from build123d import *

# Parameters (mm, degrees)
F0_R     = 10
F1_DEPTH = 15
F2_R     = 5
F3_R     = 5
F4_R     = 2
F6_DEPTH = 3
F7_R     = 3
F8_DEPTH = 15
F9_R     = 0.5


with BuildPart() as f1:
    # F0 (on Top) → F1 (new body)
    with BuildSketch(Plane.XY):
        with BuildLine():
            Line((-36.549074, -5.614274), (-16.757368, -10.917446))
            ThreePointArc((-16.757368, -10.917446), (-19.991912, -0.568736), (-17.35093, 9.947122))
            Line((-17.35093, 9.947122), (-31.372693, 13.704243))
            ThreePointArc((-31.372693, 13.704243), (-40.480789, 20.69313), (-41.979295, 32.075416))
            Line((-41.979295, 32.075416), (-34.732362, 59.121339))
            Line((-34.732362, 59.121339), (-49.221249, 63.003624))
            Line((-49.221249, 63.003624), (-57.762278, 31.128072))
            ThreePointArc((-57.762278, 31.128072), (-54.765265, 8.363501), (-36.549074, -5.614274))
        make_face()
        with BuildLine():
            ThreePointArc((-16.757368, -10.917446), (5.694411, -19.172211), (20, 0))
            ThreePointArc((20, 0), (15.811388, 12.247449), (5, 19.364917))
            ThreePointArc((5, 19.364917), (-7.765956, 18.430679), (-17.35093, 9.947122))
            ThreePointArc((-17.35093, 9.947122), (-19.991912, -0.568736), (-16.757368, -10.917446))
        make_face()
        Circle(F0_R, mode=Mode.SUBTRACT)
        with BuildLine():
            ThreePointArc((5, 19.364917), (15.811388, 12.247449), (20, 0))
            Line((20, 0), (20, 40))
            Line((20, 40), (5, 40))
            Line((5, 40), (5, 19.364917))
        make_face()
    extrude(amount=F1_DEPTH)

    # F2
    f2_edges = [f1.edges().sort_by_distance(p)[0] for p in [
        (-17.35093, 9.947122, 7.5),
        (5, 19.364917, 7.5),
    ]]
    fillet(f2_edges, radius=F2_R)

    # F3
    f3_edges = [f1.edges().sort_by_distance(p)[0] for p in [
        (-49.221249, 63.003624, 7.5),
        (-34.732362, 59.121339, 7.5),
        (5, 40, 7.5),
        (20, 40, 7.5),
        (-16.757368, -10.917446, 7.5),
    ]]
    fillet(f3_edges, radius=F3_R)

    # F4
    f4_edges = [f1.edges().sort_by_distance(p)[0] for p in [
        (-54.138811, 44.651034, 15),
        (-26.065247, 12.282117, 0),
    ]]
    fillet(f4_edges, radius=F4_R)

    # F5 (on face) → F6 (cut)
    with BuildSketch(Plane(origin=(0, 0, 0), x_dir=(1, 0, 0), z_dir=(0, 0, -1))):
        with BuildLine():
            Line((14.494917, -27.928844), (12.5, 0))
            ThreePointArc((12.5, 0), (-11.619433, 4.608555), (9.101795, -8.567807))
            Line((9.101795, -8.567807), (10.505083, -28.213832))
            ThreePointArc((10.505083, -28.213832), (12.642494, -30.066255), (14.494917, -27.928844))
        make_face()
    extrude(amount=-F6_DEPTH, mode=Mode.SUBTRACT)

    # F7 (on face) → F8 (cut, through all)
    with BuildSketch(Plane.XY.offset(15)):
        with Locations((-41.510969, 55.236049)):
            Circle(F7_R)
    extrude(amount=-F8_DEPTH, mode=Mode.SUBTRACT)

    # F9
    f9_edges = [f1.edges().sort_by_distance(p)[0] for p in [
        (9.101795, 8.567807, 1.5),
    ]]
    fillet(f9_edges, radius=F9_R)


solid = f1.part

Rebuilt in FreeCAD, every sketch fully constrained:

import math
import FreeCAD as App
import Part
import Sketcher
from FreeCAD import Vector
Q = App.Units.Quantity


def edges_at(feature, points):
    """Names of the edges that pass closest to the given points."""
    edges = feature.Shape.Edges
    near = lambda p: min(range(len(edges)), key=lambda i: edges[i].distToShape(Part.Vertex(*p))[0])
    return sorted({f"Edge{near(p) + 1}" for p in points})

doc = App.newDocument("Part")
body = doc.addObject("PartDesign::Body", "Body")

# Sketch on XY plane
sketch1 = body.newObject("Sketcher::SketchObject", "Sketch")
sketch1.AttachmentSupport = (doc.getObject("XY_Plane"), [""])
sketch1.MapMode = "FlatFace"
sketch1.addGeometry([
    Part.LineSegment(Vector(-37, -6, 0), Vector(-17, -11, 0)),  # 0
    Part.ArcOfCircle(Part.Circle(Vector(0, 0, 0), Vector(0, 0, 1), 20), math.radians(-147), math.radians(0)),  # 1
    Part.LineSegment(Vector(20, 0, 0), Vector(20, 40, 0)),  # 2
    Part.LineSegment(Vector(20, 40, 0), Vector(5, 40, 0)),  # 3
    Part.LineSegment(Vector(5, 40, 0), Vector(5, 19, 0)),  # 4
    Part.ArcOfCircle(Part.Circle(Vector(0, 0, 0), Vector(0, 0, 1), 20), math.radians(76), math.radians(150)),  # 5
    Part.LineSegment(Vector(-17, 10, 0), Vector(-31, 14, 0)),  # 6
    Part.ArcOfCircle(Part.Circle(Vector(-27, 28, 0), Vector(0, 0, 1), 15), math.radians(165), math.radians(255)),  # 7
    Part.LineSegment(Vector(-42, 32, 0), Vector(-35, 59, 0)),  # 8
    Part.LineSegment(Vector(-35, 59, 0), Vector(-49, 63, 0)),  # 9
    Part.LineSegment(Vector(-49, 63, 0), Vector(-58, 31, 0)),  # 10
    Part.ArcOfCircle(Part.Circle(Vector(-29, 23, 0), Vector(0, 0, 1), 30), math.radians(165), math.radians(255)),  # 11
    Part.Circle(Vector(0, 0, 0), Vector(0, 0, 1), 10),  # 12
], False)
sketch1.addConstraint([
    Sketcher.Constraint("Coincident", 0, 2, 1, 1),
    Sketcher.Constraint("Tangent", 1, 2, 2, 1),
    Sketcher.Constraint("Coincident", 2, 2, 3, 1),
    Sketcher.Constraint("Coincident", 3, 2, 4, 1),
    Sketcher.Constraint("Coincident", 4, 2, 5, 1),
    Sketcher.Constraint("Coincident", 5, 2, 6, 1),
    Sketcher.Constraint("Tangent", 6, 2, 7, 2),
    Sketcher.Constraint("Tangent", 7, 1, 8, 1),
    Sketcher.Constraint("Coincident", 8, 2, 9, 1),
    Sketcher.Constraint("Coincident", 9, 2, 10, 1),
    Sketcher.Constraint("Tangent", 10, 2, 11, 1),
    Sketcher.Constraint("Tangent", 11, 2, 0, 1),
    Sketcher.Constraint("Vertical", 2),
    Sketcher.Constraint("Horizontal", 3),
    Sketcher.Constraint("Vertical", 4),
    Sketcher.Constraint("Coincident", 1, 3, -1, 1),
    Sketcher.Constraint("Coincident", 5, 3, -1, 1),
    Sketcher.Constraint("Coincident", 12, 3, -1, 1),
    Sketcher.Constraint("Equal", 1, 5),
    Sketcher.Constraint("Parallel", 0, 6),
    Sketcher.Constraint("Perpendicular", 6, 8),
    Sketcher.Constraint("Perpendicular", 8, 9),
    Sketcher.Constraint("Perpendicular", 9, 10),
    Sketcher.Constraint("Diameter", 12, 20.0),
    Sketcher.Constraint("Radius", 1, 20.0),
    Sketcher.Constraint("Radius", 7, 14.999999),
    Sketcher.Constraint("Radius", 11, 30.000001),
    Sketcher.Constraint("DistanceX", 3, 2, 3, 1, 15.0),
    Sketcher.Constraint("DistanceY", 2, 1, 2, 2, 40.0),
    Sketcher.Constraint("Angle", 0, Q("-15.000001 deg")),
    Sketcher.Constraint("Distance", 8, 28.0),
    Sketcher.Constraint("Distance", 9, 14.999999),
    Sketcher.Constraint("Distance", 10, 33.0),
    Sketcher.Constraint("DistanceY", -1, 1, 11, 3, 23.363501),
    Sketcher.Constraint("Distance", 0, 20.489882),
])
pad1 = body.newObject("PartDesign::Pad", "Pad")
pad1.Profile = sketch1
pad1.Length = 15
doc.recompute()

fillet = body.newObject("PartDesign::Fillet", "Fillet")
fillet.Base = (pad1, edges_at(pad1, [(-17.351, 9.947, 7.5), (5, 19.365, 7.5)]))
fillet.Radius = 5
doc.recompute()

fillet2 = body.newObject("PartDesign::Fillet", "Fillet001")
fillet2.Base = (fillet, edges_at(fillet, [
    (-49.221, 63.004, 7.5),
    (-34.732, 59.121, 7.5),
    (5, 40, 7.5),
    (20, 40, 7.5),
    (-16.757, -10.917, 7.5),
]))
fillet2.Radius = 5
doc.recompute()

fillet3 = body.newObject("PartDesign::Fillet", "Fillet002")
fillet3.Base = (fillet2, edges_at(fillet2, [(-54.139, 44.651, 15), (-26.065, 12.282, 0)]))
fillet3.Radius = 2

# Sketch on XY plane
sketch2 = body.newObject("Sketcher::SketchObject", "Sketch001")
sketch2.AttachmentSupport = (doc.getObject("XY_Plane"), [""])
sketch2.MapMode = "FlatFace"
sketch2.addGeometry([
    Part.LineSegment(Vector(14.5, 27.9, 0), Vector(12.5, 0, 0)),
    Part.ArcOfCircle(Part.Circle(Vector(0, 0, 0), Vector(0, 0, 1), 12.5), math.radians(43), math.radians(360)),
    Part.LineSegment(Vector(9.1, 8.6, 0), Vector(10.5, 28.2, 0)),
    Part.ArcOfCircle(Part.Circle(Vector(12.5, 28.1, 0), Vector(0, 0, 1), 2), math.radians(-4), math.radians(176)),
], False)
sketch2.addConstraint([
    Sketcher.Constraint("Coincident", 0, 2, 1, 2),
    Sketcher.Constraint("Coincident", 1, 1, 2, 1),
    Sketcher.Constraint("Tangent", 2, 2, 3, 2),
    Sketcher.Constraint("Tangent", 3, 1, 0, 1),
    Sketcher.Constraint("Coincident", 1, 3, -1, 1),
    Sketcher.Constraint("PointOnObject", 0, 2, -1),
    Sketcher.Constraint("Parallel", 0, 2),
    Sketcher.Constraint("Vertical", 3, 3, 0, 2),
    Sketcher.Constraint("Radius", 3, 2.0),
    Sketcher.Constraint("Radius", 1, 12.5),
    Sketcher.Constraint("Distance", 0, 28.0),
])
pocket1 = body.newObject("PartDesign::Pocket", "Pocket")
pocket1.Profile = sketch2
pocket1.Length = 3
pocket1.Reversed = True

# Sketch on XY plane
sketch3 = body.newObject("Sketcher::SketchObject", "Sketch002")
sketch3.AttachmentSupport = (doc.getObject("XY_Plane"), [""])
sketch3.MapMode = "FlatFace"
sketch3.AttachmentOffset = App.Placement(Vector(0, 0, 15), App.Rotation())
sketch3.addGeometry(Part.Circle(Vector(-41.5, 55.2, 0), Vector(0, 0, 1), 3), False)
sketch3.addConstraint([
    Sketcher.Constraint("Diameter", 0, 6.0),
    Sketcher.Constraint("DistanceX", 0, 3, -1, 1, 41.510969),
    Sketcher.Constraint("DistanceY", -1, 1, 0, 3, 55.236049),
])
pocket2 = body.newObject("PartDesign::Pocket", "Pocket001")
pocket2.Profile = sketch3
pocket2.Type = "ThroughAll"
doc.recompute()

fillet4 = body.newObject("PartDesign::Fillet", "Fillet003")
fillet4.Base = (pocket2, edges_at(pocket2, [(9.102, 8.568, 1.5)]))
fillet4.Radius = 0.5

doc.recompute()
